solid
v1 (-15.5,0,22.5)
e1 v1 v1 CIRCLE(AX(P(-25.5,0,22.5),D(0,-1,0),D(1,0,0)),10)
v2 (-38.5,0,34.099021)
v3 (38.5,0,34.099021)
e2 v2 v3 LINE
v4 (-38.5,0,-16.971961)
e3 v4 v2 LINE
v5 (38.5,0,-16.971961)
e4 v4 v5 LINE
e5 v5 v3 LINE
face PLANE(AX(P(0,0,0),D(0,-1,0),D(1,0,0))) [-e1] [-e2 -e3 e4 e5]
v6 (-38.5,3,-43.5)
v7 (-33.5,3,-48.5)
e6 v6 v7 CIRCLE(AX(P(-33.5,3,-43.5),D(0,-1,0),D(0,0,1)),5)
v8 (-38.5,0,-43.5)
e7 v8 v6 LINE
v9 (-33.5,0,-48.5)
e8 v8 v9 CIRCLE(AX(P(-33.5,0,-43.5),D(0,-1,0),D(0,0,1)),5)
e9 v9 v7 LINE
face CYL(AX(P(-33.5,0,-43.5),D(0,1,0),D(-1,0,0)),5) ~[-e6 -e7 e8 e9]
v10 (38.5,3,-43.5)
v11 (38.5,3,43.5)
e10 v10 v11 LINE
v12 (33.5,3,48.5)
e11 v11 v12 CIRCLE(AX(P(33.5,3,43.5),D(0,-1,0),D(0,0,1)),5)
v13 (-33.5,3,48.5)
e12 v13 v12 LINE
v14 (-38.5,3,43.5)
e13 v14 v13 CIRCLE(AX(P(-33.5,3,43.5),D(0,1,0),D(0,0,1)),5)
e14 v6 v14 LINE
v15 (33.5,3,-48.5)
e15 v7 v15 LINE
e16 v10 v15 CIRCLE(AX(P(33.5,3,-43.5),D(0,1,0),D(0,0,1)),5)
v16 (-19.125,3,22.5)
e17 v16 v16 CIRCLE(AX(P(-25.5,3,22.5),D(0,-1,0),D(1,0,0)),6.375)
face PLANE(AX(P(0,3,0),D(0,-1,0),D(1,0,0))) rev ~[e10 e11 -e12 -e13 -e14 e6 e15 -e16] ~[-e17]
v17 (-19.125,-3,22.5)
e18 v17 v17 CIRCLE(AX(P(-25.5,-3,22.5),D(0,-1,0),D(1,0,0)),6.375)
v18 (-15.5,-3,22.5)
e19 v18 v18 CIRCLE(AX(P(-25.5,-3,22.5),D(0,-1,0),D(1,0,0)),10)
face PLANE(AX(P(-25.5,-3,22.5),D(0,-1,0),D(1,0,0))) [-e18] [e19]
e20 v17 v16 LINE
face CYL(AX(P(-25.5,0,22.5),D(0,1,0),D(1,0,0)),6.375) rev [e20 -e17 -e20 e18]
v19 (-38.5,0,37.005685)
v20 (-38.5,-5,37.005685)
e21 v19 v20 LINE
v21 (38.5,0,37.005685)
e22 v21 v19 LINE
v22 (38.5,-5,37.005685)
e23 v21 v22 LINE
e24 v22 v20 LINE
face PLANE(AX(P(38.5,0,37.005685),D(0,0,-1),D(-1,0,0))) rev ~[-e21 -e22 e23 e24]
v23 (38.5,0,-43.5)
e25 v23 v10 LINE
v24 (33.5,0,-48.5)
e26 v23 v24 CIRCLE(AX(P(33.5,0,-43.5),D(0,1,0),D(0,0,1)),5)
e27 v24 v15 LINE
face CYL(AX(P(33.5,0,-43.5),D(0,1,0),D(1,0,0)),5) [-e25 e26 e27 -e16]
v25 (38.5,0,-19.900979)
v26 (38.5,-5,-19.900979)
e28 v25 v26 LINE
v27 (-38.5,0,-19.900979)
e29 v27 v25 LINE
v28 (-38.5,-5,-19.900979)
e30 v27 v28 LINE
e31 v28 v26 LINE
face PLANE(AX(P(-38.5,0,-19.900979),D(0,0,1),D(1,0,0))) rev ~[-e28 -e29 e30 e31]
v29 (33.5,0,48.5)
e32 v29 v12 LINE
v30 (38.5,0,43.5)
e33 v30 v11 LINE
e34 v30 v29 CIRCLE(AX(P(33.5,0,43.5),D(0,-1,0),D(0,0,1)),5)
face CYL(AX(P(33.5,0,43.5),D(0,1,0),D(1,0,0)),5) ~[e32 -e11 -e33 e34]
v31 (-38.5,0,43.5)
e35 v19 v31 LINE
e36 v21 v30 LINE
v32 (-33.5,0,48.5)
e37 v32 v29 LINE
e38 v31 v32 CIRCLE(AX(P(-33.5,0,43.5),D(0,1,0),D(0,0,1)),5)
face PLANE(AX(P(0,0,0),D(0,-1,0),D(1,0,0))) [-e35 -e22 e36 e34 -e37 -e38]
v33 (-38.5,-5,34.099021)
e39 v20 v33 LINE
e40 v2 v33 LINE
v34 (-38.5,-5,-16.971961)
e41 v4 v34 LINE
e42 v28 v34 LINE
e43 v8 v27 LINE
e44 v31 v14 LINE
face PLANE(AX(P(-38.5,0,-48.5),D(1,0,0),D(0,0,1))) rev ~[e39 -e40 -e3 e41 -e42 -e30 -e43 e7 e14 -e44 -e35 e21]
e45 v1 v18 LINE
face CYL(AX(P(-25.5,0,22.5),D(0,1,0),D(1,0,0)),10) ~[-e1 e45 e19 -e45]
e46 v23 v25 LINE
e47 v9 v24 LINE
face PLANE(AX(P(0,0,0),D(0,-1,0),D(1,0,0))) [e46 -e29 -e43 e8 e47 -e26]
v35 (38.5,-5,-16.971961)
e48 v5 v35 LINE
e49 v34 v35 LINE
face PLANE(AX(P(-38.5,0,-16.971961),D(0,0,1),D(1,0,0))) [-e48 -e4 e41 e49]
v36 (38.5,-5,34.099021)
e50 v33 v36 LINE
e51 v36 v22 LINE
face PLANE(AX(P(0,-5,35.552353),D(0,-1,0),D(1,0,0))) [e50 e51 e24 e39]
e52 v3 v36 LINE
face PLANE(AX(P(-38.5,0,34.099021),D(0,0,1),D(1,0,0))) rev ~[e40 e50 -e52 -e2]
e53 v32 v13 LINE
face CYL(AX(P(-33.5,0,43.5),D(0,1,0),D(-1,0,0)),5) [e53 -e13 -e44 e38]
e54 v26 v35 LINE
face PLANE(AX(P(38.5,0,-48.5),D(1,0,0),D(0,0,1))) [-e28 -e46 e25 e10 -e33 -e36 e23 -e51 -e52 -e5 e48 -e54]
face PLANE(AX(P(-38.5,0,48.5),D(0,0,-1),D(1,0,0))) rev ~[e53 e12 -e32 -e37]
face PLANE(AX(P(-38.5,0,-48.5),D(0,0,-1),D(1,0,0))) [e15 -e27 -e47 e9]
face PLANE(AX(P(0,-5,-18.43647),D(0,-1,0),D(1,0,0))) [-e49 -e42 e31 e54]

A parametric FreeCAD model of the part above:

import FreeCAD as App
import Part
import Sketcher


def edges_at(feature, points):
    """Names of the edges that pass closest to the given points."""
    edges = feature.Shape.Edges
    near = lambda p: min(range(len(edges)), key=lambda i: edges[i].distToShape(Part.Vertex(*p))[0])
    return sorted({f"Edge{near(p) + 1}" for p in points})

doc = App.newDocument("Part")
body = doc.addObject("PartDesign::Body", "Body")

# Sketch on XZ plane
sketch1 = doc.addObject("Sketcher::SketchObject", "Sketch")
body.addObject(sketch1)
sketch1.AttachmentSupport = (doc.XZ_Plane, [""])
sketch1.MapMode = "FlatFace"
sketch1.addGeometry(Part.LineSegment(App.Vector(-38.5, 48.5, 0), App.Vector(-38.5, -48.5, 0)), False)
sketch1.addGeometry(Part.LineSegment(App.Vector(-38.5, -48.5, 0), App.Vector(38.5, -48.5, 0)), False)
sketch1.addGeometry(Part.LineSegment(App.Vector(38.5, -48.5, 0), App.Vector(38.5, 48.5, 0)), False)
sketch1.addGeometry(Part.LineSegment(App.Vector(38.5, 48.5, 0), App.Vector(-38.5, 48.5, 0)), False)
sketch1.addGeometry(Part.Circle(App.Vector(-25.5, 22.5, 0), App.Vector(0, 0, 1), 6.375), False)
sketch1.addConstraint(Sketcher.Constraint("Coincident", 0, 2, 1, 1))
sketch1.addConstraint(Sketcher.Constraint("Coincident", 1, 2, 2, 1))
sketch1.addConstraint(Sketcher.Constraint("Coincident", 2, 2, 3, 1))
sketch1.addConstraint(Sketcher.Constraint("Coincident", 3, 2, 0, 1))
sketch1.addConstraint(Sketcher.Constraint("Vertical", 0))
sketch1.addConstraint(Sketcher.Constraint("Horizontal", 1))
sketch1.addConstraint(Sketcher.Constraint("Vertical", 2))
sketch1.addConstraint(Sketcher.Constraint("Horizontal", 3))
sketch1.addConstraint(Sketcher.Constraint("Symmetric", 0, 2, 2, 2, -1, 1))
sketch1.addConstraint(Sketcher.Constraint("Diameter", 4, 12.75))
sketch1.addConstraint(Sketcher.Constraint("DistanceX", 1, 1, 1, 2, 77.0))
sketch1.addConstraint(Sketcher.Constraint("DistanceY", 0, 2, 0, 1, 97.0))
sketch1.addConstraint(Sketcher.Constraint("DistanceX", 0, 2, 4, 3, 13.0))
sketch1.addConstraint(Sketcher.Constraint("DistanceY", 0, 2, 4, 3, 71.0))
pad1 = doc.addObject("PartDesign::Pad", "Pad")
body.addObject(pad1)
pad1.Profile = sketch1
pad1.Length = 3
pad1.Reversed = True

# Sketch on XZ plane
sketch2 = doc.addObject("Sketcher::SketchObject", "Sketch001")
body.addObject(sketch2)
sketch2.AttachmentSupport = (doc.XZ_Plane, [""])
sketch2.MapMode = "FlatFace"
sketch2.addGeometry(Part.Circle(App.Vector(-25.5, 22.5, 0), App.Vector(0, 0, 1), 10), False)
sketch2.addGeometry(Part.Circle(App.Vector(-25.5, 22.5, 0), App.Vector(0, 0, 1), 6.375), False)
sketch2.addConstraint(Sketcher.Constraint("Coincident", 1, 3, 0, 3))
sketch2.addConstraint(Sketcher.Constraint("Diameter", 0, 20.0))
sketch2.addConstraint(Sketcher.Constraint("Diameter", 1, 12.75))
sketch2.addConstraint(Sketcher.Constraint("DistanceX", 0, 3, -1, 1, 25.5))
sketch2.addConstraint(Sketcher.Constraint("DistanceY", -1, 1, 0, 3, 22.5))
pad2 = doc.addObject("PartDesign::Pad", "Pad001")
body.addObject(pad2)
pad2.Profile = sketch2
pad2.Length = 3

# Sketch on XZ plane
sketch3 = doc.addObject("Sketcher::SketchObject", "Sketch002")
body.addObject(sketch3)
sketch3.AttachmentSupport = (doc.XZ_Plane, [""])
sketch3.MapMode = "FlatFace"
sketch3.addGeometry(Part.LineSegment(App.Vector(-38.5, 37.005685, 0), App.Vector(-38.5, 34.099021, 0)), False)
sketch3.addGeometry(Part.LineSegment(App.Vector(-38.5, 34.099021, 0), App.Vector(38.5, 34.099021, 0)), False)
sketch3.addGeometry(Part.LineSegment(App.Vector(38.5, 34.099021, 0), App.Vector(38.5, 37.005685, 0)), False)
sketch3.addGeometry(Part.LineSegment(App.Vector(38.5, 37.005685, 0), App.Vector(-38.5, 37.005685, 0)), False)
sketch3.addGeometry(Part.LineSegment(App.Vector(-38.5, -16.971961, 0), App.Vector(-38.5, -19.900979, 0)), False)
sketch3.addGeometry(Part.LineSegment(App.Vector(-38.5, -19.900979, 0), App.Vector(38.5, -19.900979, 0)), False)
sketch3.addGeometry(Part.LineSegment(App.Vector(38.5, -19.900979, 0), App.Vector(38.5, -16.971961, 0)), False)
sketch3.addGeometry(Part.LineSegment(App.Vector(38.5, -16.971961, 0), App.Vector(-38.5, -16.971961, 0)), False)
sketch3.addConstraint(Sketcher.Constraint("Coincident", 0, 2, 1, 1))
sketch3.addConstraint(Sketcher.Constraint("Coincident", 1, 2, 2, 1))
sketch3.addConstraint(Sketcher.Constraint("Coincident", 2, 2, 3, 1))
sketch3.addConstraint(Sketcher.Constraint("Coincident", 3, 2, 0, 1))
sketch3.addConstraint(Sketcher.Constraint("Coincident", 4, 2, 5, 1))
sketch3.addConstraint(Sketcher.Constraint("Coincident", 5, 2, 6, 1))
sketch3.addConstraint(Sketcher.Constraint("Coincident", 6, 2, 7, 1))
sketch3.addConstraint(Sketcher.Constraint("Coincident", 7, 2, 4, 1))
sketch3.addConstraint(Sketcher.Constraint("Vertical", 0))
sketch3.addConstraint(Sketcher.Constraint("Horizontal", 1))
sketch3.addConstraint(Sketcher.Constraint("Vertical", 2))
sketch3.addConstraint(Sketcher.Constraint("Horizontal", 3))
sketch3.addConstraint(Sketcher.Constraint("Vertical", 4))
sketch3.addConstraint(Sketcher.Constraint("Horizontal", 5))
sketch3.addConstraint(Sketcher.Constraint("Vertical", 6))
sketch3.addConstraint(Sketcher.Constraint("Horizontal", 7))
sketch3.addConstraint(Sketcher.Constraint("Vertical", 3, 2, 4, 2))
sketch3.addConstraint(Sketcher.Constraint("Vertical", 2, 2, 5, 2))
sketch3.addConstraint(Sketcher.Constraint("DistanceX", 1, 1, 1, 2, 77.0))
sketch3.addConstraint(Sketcher.Constraint("DistanceY", 4, 2, 0, 2, 54.0))
sketch3.addConstraint(Sketcher.Constraint("DistanceX", 0, 2, -1, 1, 38.5))
sketch3.addConstraint(Sketcher.Constraint("DistanceY", 0, 2, 0, 1, 2.906664))
sketch3.addConstraint(Sketcher.Constraint("DistanceY", 4, 2, 4, 1, 2.929018))
sketch3.addConstraint(Sketcher.Constraint("DistanceY", -1, 1, 0, 2, 34.099021))
pad3 = doc.addObject("PartDesign::Pad", "Pad002")
body.addObject(pad3)
pad3.Profile = sketch3
pad3.Length = 5
doc.recompute()

fillet = doc.addObject("PartDesign::Fillet", "Fillet")
body.addObject(fillet)
fillet.Base = (pad3, edges_at(pad3, [
    (38.5, 1.5, 48.5),
    (-38.5, 1.5, 48.5),
    (38.5, 1.5, -48.5),
    (-38.5, 1.5, -48.5),
]))
fillet.Radius = 5

doc.recompute()
